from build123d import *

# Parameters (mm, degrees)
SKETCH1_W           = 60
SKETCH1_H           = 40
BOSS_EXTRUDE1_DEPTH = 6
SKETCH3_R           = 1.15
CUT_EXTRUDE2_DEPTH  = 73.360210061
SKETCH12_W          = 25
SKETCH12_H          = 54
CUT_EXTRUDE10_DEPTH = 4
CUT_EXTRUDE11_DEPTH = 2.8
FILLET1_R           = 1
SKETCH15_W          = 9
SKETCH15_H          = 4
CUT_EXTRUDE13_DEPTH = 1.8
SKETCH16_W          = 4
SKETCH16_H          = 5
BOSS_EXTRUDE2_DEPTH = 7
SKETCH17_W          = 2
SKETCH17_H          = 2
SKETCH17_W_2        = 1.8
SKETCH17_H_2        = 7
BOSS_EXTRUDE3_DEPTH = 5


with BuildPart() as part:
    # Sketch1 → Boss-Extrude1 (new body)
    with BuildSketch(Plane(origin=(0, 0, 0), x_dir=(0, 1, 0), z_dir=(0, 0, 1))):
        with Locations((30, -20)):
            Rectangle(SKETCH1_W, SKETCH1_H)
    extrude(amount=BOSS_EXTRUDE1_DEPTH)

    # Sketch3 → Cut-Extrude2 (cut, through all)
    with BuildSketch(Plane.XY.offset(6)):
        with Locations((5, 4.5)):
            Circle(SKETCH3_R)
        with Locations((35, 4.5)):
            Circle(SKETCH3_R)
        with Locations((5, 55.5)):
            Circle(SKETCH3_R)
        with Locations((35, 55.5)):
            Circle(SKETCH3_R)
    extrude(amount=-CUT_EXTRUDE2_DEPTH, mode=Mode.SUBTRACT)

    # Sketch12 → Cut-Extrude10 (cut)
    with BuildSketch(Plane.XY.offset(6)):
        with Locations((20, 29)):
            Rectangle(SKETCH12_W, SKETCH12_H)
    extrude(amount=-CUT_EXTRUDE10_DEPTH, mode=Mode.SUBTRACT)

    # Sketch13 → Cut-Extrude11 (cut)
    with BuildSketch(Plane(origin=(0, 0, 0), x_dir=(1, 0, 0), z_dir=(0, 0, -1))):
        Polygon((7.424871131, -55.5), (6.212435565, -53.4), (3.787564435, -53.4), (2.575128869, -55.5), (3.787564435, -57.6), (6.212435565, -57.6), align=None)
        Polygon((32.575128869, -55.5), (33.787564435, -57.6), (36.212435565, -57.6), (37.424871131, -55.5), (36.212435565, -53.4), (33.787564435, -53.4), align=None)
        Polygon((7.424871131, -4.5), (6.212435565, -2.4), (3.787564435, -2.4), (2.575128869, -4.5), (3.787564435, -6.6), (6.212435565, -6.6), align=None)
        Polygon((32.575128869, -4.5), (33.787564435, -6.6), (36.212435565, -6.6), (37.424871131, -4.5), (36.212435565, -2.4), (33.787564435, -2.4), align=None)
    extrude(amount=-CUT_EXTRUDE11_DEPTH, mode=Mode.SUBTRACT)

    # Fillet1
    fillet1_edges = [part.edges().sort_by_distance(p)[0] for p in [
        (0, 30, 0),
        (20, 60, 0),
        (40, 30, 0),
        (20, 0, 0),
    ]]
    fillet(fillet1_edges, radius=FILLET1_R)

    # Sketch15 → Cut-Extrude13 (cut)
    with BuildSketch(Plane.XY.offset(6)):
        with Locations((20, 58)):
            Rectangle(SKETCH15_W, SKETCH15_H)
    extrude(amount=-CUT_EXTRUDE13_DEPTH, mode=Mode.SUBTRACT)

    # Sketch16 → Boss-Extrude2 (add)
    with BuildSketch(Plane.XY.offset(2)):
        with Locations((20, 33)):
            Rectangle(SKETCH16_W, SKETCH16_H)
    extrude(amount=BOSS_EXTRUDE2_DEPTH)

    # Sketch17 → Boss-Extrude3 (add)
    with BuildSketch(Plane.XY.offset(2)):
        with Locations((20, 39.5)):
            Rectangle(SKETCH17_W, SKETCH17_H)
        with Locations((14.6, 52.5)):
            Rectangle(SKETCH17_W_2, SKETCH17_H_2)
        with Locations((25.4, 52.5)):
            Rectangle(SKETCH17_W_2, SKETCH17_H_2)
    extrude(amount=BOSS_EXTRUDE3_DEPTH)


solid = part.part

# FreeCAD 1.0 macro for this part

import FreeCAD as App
import Part
import Sketcher

V = App.Vector
Q = App.Units.Quantity


def edges_at(feature, points):
    """Names of the edges that pass closest to the given points."""
    edges = feature.Shape.Edges
    near = lambda p: min(range(len(edges)), key=lambda i: edges[i].distToShape(Part.Vertex(*p))[0])
    return sorted({f"Edge{near(p) + 1}" for p in points})

doc = App.newDocument("Part")
body = doc.addObject("PartDesign::Body", "Body")

sketch1 = body.newObject("Sketcher::SketchObject", "Sketch")
sketch1.AttachmentSupport = (doc.getObject("XY_Plane"), [""])
sketch1.MapMode = "FlatFace"
sketch1.addGeometry([
    Part.LineSegment(V(0, 0, 0), V(40, 0, 0)),
    Part.LineSegment(V(40, 0, 0), V(40, 60, 0)),
    Part.LineSegment(V(40, 60, 0), V(0, 60, 0)),
    Part.LineSegment(V(0, 60, 0), V(0, 0, 0)),
], False)
sketch1.addConstraint([
    Sketcher.Constraint("Coincident", 0, 2, 1, 1),
    Sketcher.Constraint("Coincident", 1, 2, 2, 1),
    Sketcher.Constraint("Coincident", 2, 2, 3, 1),
    Sketcher.Constraint("Coincident", 3, 2, 0, 1),
    Sketcher.Constraint("Horizontal", 0),
    Sketcher.Constraint("Vertical", 1),
    Sketcher.Constraint("Horizontal", 2),
    Sketcher.Constraint("Vertical", 3),
    Sketcher.Constraint("Coincident", 3, 2, -1, 1),
    Sketcher.Constraint("DistanceX", 0, 1, 0, 2, 40.0),
    Sketcher.Constraint("DistanceY", 1, 1, 1, 2, 60.0),
])
pad1 = body.newObject("PartDesign::Pad", "Pad")
pad1.Profile = sketch1
pad1.Length = 6

sketch2 = body.newObject("Sketcher::SketchObject", "Sketch001")
sketch2.AttachmentSupport = (doc.getObject("XY_Plane"), [""])
sketch2.MapMode = "FlatFace"
sketch2.AttachmentOffset = App.Placement(V(0, 0, 6), App.Rotation())
sketch2.addGeometry([
    Part.Circle(V(5, 4.5, 0), V(0, 0, 1), 1.1),
    Part.Circle(V(35, 4.5, 0), V(0, 0, 1), 1.1),
    Part.Circle(V(5, 55.5, 0), V(0, 0, 1), 1.1),
    Part.Circle(V(35, 55.5, 0), V(0, 0, 1), 1.1),
], False)
sketch2.addConstraint([
    Sketcher.Constraint("Equal", 0, 1),
    Sketcher.Constraint("Equal", 1, 2),
    Sketcher.Constraint("Equal", 2, 3),
    Sketcher.Constraint("Horizontal", 0, 3, 1, 3),
    Sketcher.Constraint("Horizontal", 2, 3, 3, 3),
    Sketcher.Constraint("Vertical", 0, 3, 2, 3),
    Sketcher.Constraint("Vertical", 1, 3, 3, 3),
    Sketcher.Constraint("Diameter", 0, 2.3),
    Sketcher.Constraint("DistanceX", -1, 1, 0, 3, 5.0),
    Sketcher.Constraint("DistanceX", -1, 1, 1, 3, 35.0),
    Sketcher.Constraint("DistanceY", 0, 3, 2, 3, 51.0),
    Sketcher.Constraint("DistanceY", -1, 1, 0, 3, 4.5),
])
pocket1 = body.newObject("PartDesign::Pocket", "Pocket")
pocket1.Profile = sketch2
pocket1.Type = "ThroughAll"

sketch3 = body.newObject("Sketcher::SketchObject", "Sketch002")
sketch3.AttachmentSupport = (doc.getObject("XY_Plane"), [""])
sketch3.MapMode = "FlatFace"
sketch3.AttachmentOffset = App.Placement(V(0, 0, 6), App.Rotation())
sketch3.addGeometry([
    Part.LineSegment(V(8, 56, 0), V(8, 2, 0)),
    Part.LineSegment(V(8, 2, 0), V(32, 2, 0)),
    Part.LineSegment(V(32, 2, 0), V(32, 56, 0)),
    Part.LineSegment(V(32, 56, 0), V(8, 56, 0)),
], False)
sketch3.addConstraint([
    Sketcher.Constraint("Coincident", 0, 2, 1, 1),
    Sketcher.Constraint("Coincident", 1, 2, 2, 1),
    Sketcher.Constraint("Coincident", 2, 2, 3, 1),
    Sketcher.Constraint("Coincident", 3, 2, 0, 1),
    Sketcher.Constraint("Vertical", 0),
    Sketcher.Constraint("Horizontal", 1),
    Sketcher.Constraint("Vertical", 2),
    Sketcher.Constraint("Horizontal", 3),
    Sketcher.Constraint("DistanceX", 1, 1, 1, 2, 25.0),
    Sketcher.Constraint("DistanceY", 0, 2, 0, 1, 54.0),
    Sketcher.Constraint("DistanceY", -1, 1, 0, 2, 2.0),
    Sketcher.Constraint("DistanceX", -1, 1, 0, 2, 7.5),
])
pocket2 = body.newObject("PartDesign::Pocket", "Pocket001")
pocket2.Profile = sketch3
pocket2.Length = 4

sketch4 = body.newObject("Sketcher::SketchObject", "Sketch003")
sketch4.AttachmentSupport = (doc.getObject("XY_Plane"), [""])
sketch4.MapMode = "FlatFace"
sketch4.addGeometry([
    Part.LineSegment(V(7.4, 55.5, 0), V(6.2, 53.4, 0)),
    Part.LineSegment(V(6.2, 53.4, 0), V(3.8, 53.4, 0)),
    Part.LineSegment(V(3.8, 53.4, 0), V(2.6, 55.5, 0)),
    Part.LineSegment(V(2.6, 55.5, 0), V(3.8, 57.6, 0)),
    Part.LineSegment(V(3.8, 57.6, 0), V(6.2, 57.6, 0)),
    Part.LineSegment(V(6.2, 57.6, 0), V(7.4, 55.5, 0)),
    Part.LineSegment(V(32.6, 55.5, 0), V(33.8, 57.6, 0)),
    Part.LineSegment(V(33.8, 57.6, 0), V(36.2, 57.6, 0)),
    Part.LineSegment(V(36.2, 57.6, 0), V(37.4, 55.5, 0)),
    Part.LineSegment(V(37.4, 55.5, 0), V(36.2, 53.4, 0)),
    Part.LineSegment(V(36.2, 53.4, 0), V(33.8, 53.4, 0)),
    Part.LineSegment(V(33.8, 53.4, 0), V(32.6, 55.5, 0)),
    Part.LineSegment(V(7.4, 4.5, 0), V(6.2, 2.4, 0)),
    Part.LineSegment(V(6.2, 2.4, 0), V(3.8, 2.4, 0)),
    Part.LineSegment(V(3.8, 2.4, 0), V(2.6, 4.5, 0)),
    Part.LineSegment(V(2.6, 4.5, 0), V(3.8, 6.6, 0)),
    Part.LineSegment(V(3.8, 6.6, 0), V(6.2, 6.6, 0)),
    Part.LineSegment(V(6.2, 6.6, 0), V(7.4, 4.5, 0)),
    Part.LineSegment(V(32.6, 4.5, 0), V(33.8, 6.6, 0)),
    Part.LineSegment(V(33.8, 6.6, 0), V(36.2, 6.6, 0)),
    Part.LineSegment(V(36.2, 6.6, 0), V(37.4, 4.5, 0)),
    Part.LineSegment(V(37.4, 4.5, 0), V(36.2, 2.4, 0)),
    Part.LineSegment(V(36.2, 2.4, 0), V(33.8, 2.4, 0)),
    Part.LineSegment(V(33.8, 2.4, 0), V(32.6, 4.5, 0)),
], False)
sketch4.addConstraint([
    Sketcher.Constraint("Coincident", 0, 2, 1, 1),
    Sketcher.Constraint("Coincident", 1, 2, 2, 1),
    Sketcher.Constraint("Coincident", 2, 2, 3, 1),
    Sketcher.Constraint("Coincident", 3, 2, 4, 1),
    Sketcher.Constraint("Coincident", 4, 2, 5, 1),
    Sketcher.Constraint("Coincident", 5, 2, 0, 1),
    Sketcher.Constraint("Coincident", 6, 2, 7, 1),
    Sketcher.Constraint("Coincident", 7, 2, 8, 1),
    Sketcher.Constraint("Coincident", 8, 2, 9, 1),
    Sketcher.Constraint("Coincident", 9, 2, 10, 1),
    Sketcher.Constraint("Coincident", 10, 2, 11, 1),
    Sketcher.Constraint("Coincident", 11, 2, 6, 1),
    Sketcher.Constraint("Coincident", 12, 2, 13, 1),
    Sketcher.Constraint("Coincident", 13, 2, 14, 1),
    Sketcher.Constraint("Coincident", 14, 2, 15, 1),
    Sketcher.Constraint("Coincident", 15, 2, 16, 1),
    Sketcher.Constraint("Coincident", 16, 2, 17, 1),
    Sketcher.Constraint("Coincident", 17, 2, 12, 1),
    Sketcher.Constraint("Coincident", 18, 2, 19, 1),
    Sketcher.Constraint("Coincident", 19, 2, 20, 1),
    Sketcher.Constraint("Coincident", 20, 2, 21, 1),
    Sketcher.Constraint("Coincident", 21, 2, 22, 1),
    Sketcher.Constraint("Coincident", 22, 2, 23, 1),
    Sketcher.Constraint("Coincident", 23, 2, 18, 1),
    Sketcher.Constraint("Horizontal", 1),
    Sketcher.Constraint("Horizontal", 4),
    Sketcher.Constraint("Horizontal", 7),
    Sketcher.Constraint("Horizontal", 10),
    Sketcher.Constraint("Horizontal", 13),
    Sketcher.Constraint("Horizontal", 16),
    Sketcher.Constraint("Horizontal", 19),
    Sketcher.Constraint("Horizontal", 22),
    Sketcher.Constraint("Parallel", 0, 3),
    Sketcher.Constraint("Parallel", 2, 5),
    Sketcher.Constraint("Parallel", 3, 6),
    Sketcher.Constraint("Parallel", 5, 8),
    Sketcher.Constraint("Parallel", 6, 9),
    Sketcher.Constraint("Parallel", 8, 11),
    Sketcher.Constraint("Parallel", 9, 12),
    Sketcher.Constraint("Parallel", 11, 14),
    Sketcher.Constraint("Parallel", 12, 15),
    Sketcher.Constraint("Parallel", 14, 17),
    Sketcher.Constraint("Parallel", 15, 18),
    Sketcher.Constraint("Parallel", 17, 20),
    Sketcher.Constraint("Parallel", 18, 21),
    Sketcher.Constraint("Parallel", 20, 23),
    Sketcher.Constraint("Horizontal", 2, 2, 5, 2),
    Sketcher.Constraint("Horizontal", 4, 2, 6, 2),
    Sketcher.Constraint("Horizontal", 5, 2, 8, 2),
    Sketcher.Constraint("Horizontal", 1, 2, 9, 2),
    Sketcher.Constraint("Horizontal", 8, 2, 11, 2),
    Sketcher.Constraint("Horizontal", 14, 2, 17, 2),
    Sketcher.Constraint("Horizontal", 16, 2, 18, 2),
    Sketcher.Constraint("Horizontal", 17, 2, 20, 2),
    Sketcher.Constraint("Horizontal", 13, 2, 21, 2),
    Sketcher.Constraint("Horizontal", 20, 2, 23, 2),
    Sketcher.Constraint("Vertical", 1, 2, 3, 2),
    Sketcher.Constraint("Vertical", 0, 2, 4, 2),
    Sketcher.Constraint("Vertical", 4, 2, 12, 2),
    Sketcher.Constraint("Vertical", 3, 2, 13, 2),
    Sketcher.Constraint("Vertical", 2, 2, 14, 2),
    Sketcher.Constraint("Vertical", 13, 2, 15, 2),
    Sketcher.Constraint("Vertical", 10, 2, 18, 2),
    Sketcher.Constraint("Vertical", 9, 2, 19, 2),
    Sketcher.Constraint("Equal", 4, 7),
    Sketcher.Constraint("Angle", 0, Q("-120 deg")),
    Sketcher.Constraint("DistanceX", 3, 2, 6, 2, 30.0),
    Sketcher.Constraint("DistanceY", 12, 2, 0, 2, 51.0),
    Sketcher.Constraint("DistanceY", -1, 1, 0, 2, 53.4),
    Sketcher.Constraint("DistanceY", -1, 1, 2, 2, 55.5),
    Sketcher.Constraint("DistanceX", 1, 2, 1, 1, 2.424871),
    Sketcher.Constraint("DistanceX", -1, 1, 2, 2, 2.575129),
])
pocket3 = body.newObject("PartDesign::Pocket", "Pocket002")
pocket3.Profile = sketch4
pocket3.Length = 2.8
pocket3.Reversed = True
doc.recompute()

fillet = body.newObject("PartDesign::Fillet", "Fillet")
fillet.Base = (pocket3, edges_at(pocket3, [
    (0, 30, 0),
    (20, 60, 0),
    (40, 30, 0),
    (20, 0, 0),
]))
fillet.Radius = 1

sketch5 = body.newObject("Sketcher::SketchObject", "Sketch004")
sketch5.AttachmentSupport = (doc.getObject("XY_Plane"), [""])
sketch5.MapMode = "FlatFace"
sketch5.AttachmentOffset = App.Placement(V(0, 0, 6), App.Rotation())
sketch5.addGeometry([
    Part.LineSegment(V(15.5, 60, 0), V(15.5, 56, 0)),
    Part.LineSegment(V(15.5, 56, 0), V(24.5, 56, 0)),
    Part.LineSegment(V(24.5, 56, 0), V(24.5, 60, 0)),
    Part.LineSegment(V(24.5, 60, 0), V(15.5, 60, 0)),
], False)
sketch5.addConstraint([
    Sketcher.Constraint("Coincident", 0, 2, 1, 1),
    Sketcher.Constraint("Coincident", 1, 2, 2, 1),
    Sketcher.Constraint("Coincident", 2, 2, 3, 1),
    Sketcher.Constraint("Coincident", 3, 2, 0, 1),
    Sketcher.Constraint("Vertical", 0),
    Sketcher.Constraint("Horizontal", 1),
    Sketcher.Constraint("Vertical", 2),
    Sketcher.Constraint("Horizontal", 3),
    Sketcher.Constraint("DistanceX", 1, 1, 1, 2, 9.0),
    Sketcher.Constraint("DistanceY", 0, 2, 0, 1, 4.0),
    Sketcher.Constraint("DistanceY", -1, 1, 0, 2, 56.0),
    Sketcher.Constraint("DistanceX", -1, 1, 0, 2, 15.5),
])
pocket4 = body.newObject("PartDesign::Pocket", "Pocket003")
pocket4.Profile = sketch5
pocket4.Length = 1.8

sketch6 = body.newObject("Sketcher::SketchObject", "Sketch005")
sketch6.AttachmentSupport = (doc.getObject("XY_Plane"), [""])
sketch6.MapMode = "FlatFace"
sketch6.AttachmentOffset = App.Placement(V(0, 0, 2), App.Rotation())
sketch6.addGeometry([
    Part.LineSegment(V(18, 35.5, 0), V(18, 30.5, 0)),
    Part.LineSegment(V(18, 30.5, 0), V(22, 30.5, 0)),
    Part.LineSegment(V(22, 30.5, 0), V(22, 35.5, 0)),
    Part.LineSegment(V(22, 35.5, 0), V(18, 35.5, 0)),
], False)
sketch6.addConstraint([
    Sketcher.Constraint("Coincident", 0, 2, 1, 1),
    Sketcher.Constraint("Coincident", 1, 2, 2, 1),
    Sketcher.Constraint("Coincident", 2, 2, 3, 1),
    Sketcher.Constraint("Coincident", 3, 2, 0, 1),
    Sketcher.Constraint("Vertical", 0),
    Sketcher.Constraint("Horizontal", 1),
    Sketcher.Constraint("Vertical", 2),
    Sketcher.Constraint("Horizontal", 3),
    Sketcher.Constraint("DistanceX", 1, 1, 1, 2, 4.0),
    Sketcher.Constraint("DistanceY", 0, 2, 0, 1, 5.0),
    Sketcher.Constraint("DistanceX", -1, 1, 0, 2, 18.0),
    Sketcher.Constraint("DistanceY", -1, 1, 0, 2, 30.5),
])
pad2 = body.newObject("PartDesign::Pad", "Pad001")
pad2.Profile = sketch6
pad2.Length = 7

sketch7 = body.newObject("Sketcher::SketchObject", "Sketch006")
sketch7.AttachmentSupport = (doc.getObject("XY_Plane"), [""])
sketch7.MapMode = "FlatFace"
sketch7.AttachmentOffset = App.Placement(V(0, 0, 2), App.Rotation())
sketch7.addGeometry([
    Part.LineSegment(V(19, 40.5, 0), V(19, 38.5, 0)),
    Part.LineSegment(V(19, 38.5, 0), V(21, 38.5, 0)),
    Part.LineSegment(V(21, 38.5, 0), V(21, 40.5, 0)),
    Part.LineSegment(V(21, 40.5, 0), V(19, 40.5, 0)),
    Part.LineSegment(V(13.7, 56, 0), V(13.7, 49, 0)),
    Part.LineSegment(V(13.7, 49, 0), V(15.5, 49, 0)),
    Part.LineSegment(V(15.5, 49, 0), V(15.5, 56, 0)),
    Part.LineSegment(V(15.5, 56, 0), V(13.7, 56, 0)),
    Part.LineSegment(V(24.5, 56, 0), V(24.5, 49, 0)),
    Part.LineSegment(V(24.5, 49, 0), V(26.3, 49, 0)),
    Part.LineSegment(V(26.3, 49, 0), V(26.3, 56, 0)),
    Part.LineSegment(V(26.3, 56, 0), V(24.5, 56, 0)),
], False)
sketch7.addConstraint([
    Sketcher.Constraint("Coincident", 0, 2, 1, 1),
    Sketcher.Constraint("Coincident", 1, 2, 2, 1),
    Sketcher.Constraint("Coincident", 2, 2, 3, 1),
    Sketcher.Constraint("Coincident", 3, 2, 0, 1),
    Sketcher.Constraint("Coincident", 4, 2, 5, 1),
    Sketcher.Constraint("Coincident", 5, 2, 6, 1),
    Sketcher.Constraint("Coincident", 6, 2, 7, 1),
    Sketcher.Constraint("Coincident", 7, 2, 4, 1),
    Sketcher.Constraint("Coincident", 8, 2, 9, 1),
    Sketcher.Constraint("Coincident", 9, 2, 10, 1),
    Sketcher.Constraint("Coincident", 10, 2, 11, 1),
    Sketcher.Constraint("Coincident", 11, 2, 8, 1),
    Sketcher.Constraint("Vertical", 0),
    Sketcher.Constraint("Horizontal", 1),
    Sketcher.Constraint("Vertical", 2),
    Sketcher.Constraint("Horizontal", 3),
    Sketcher.Constraint("Vertical", 4),
    Sketcher.Constraint("Horizontal", 5),
    Sketcher.Constraint("Vertical", 6),
    Sketcher.Constraint("Horizontal", 7),
    Sketcher.Constraint("Vertical", 8),
    Sketcher.Constraint("Horizontal", 9),
    Sketcher.Constraint("Vertical", 10),
    Sketcher.Constraint("Horizontal", 11),
    Sketcher.Constraint("Horizontal", 5, 2, 8, 2),
    Sketcher.Constraint("Horizontal", 7, 2, 10, 2),
    Sketcher.Constraint("Equal", 7, 9),
    Sketcher.Constraint("Equal", 3, 0),
    Sketcher.Constraint("DistanceX", 1, 1, 1, 2, 2.0),
    Sketcher.Constraint("DistanceY", 4, 2, 4, 1, 7.0),
    Sketcher.Constraint("DistanceX", 5, 1, 5, 2, 1.8),
    Sketcher.Constraint("DistanceX", -1, 1, 0, 2, 19.0),
    Sketcher.Constraint("DistanceY", -1, 1, 4, 2, 49.0),
    Sketcher.Constraint("DistanceX", 5, 2, 8, 2, 9.0),
    Sketcher.Constraint("DistanceY", -1, 1, 0, 2, 38.5),
    Sketcher.Constraint("DistanceX", -1, 1, 4, 2, 13.7),
])
pad3 = body.newObject("PartDesign::Pad", "Pad002")
pad3.Profile = sketch7
pad3.Length = 5

doc.recompute()
